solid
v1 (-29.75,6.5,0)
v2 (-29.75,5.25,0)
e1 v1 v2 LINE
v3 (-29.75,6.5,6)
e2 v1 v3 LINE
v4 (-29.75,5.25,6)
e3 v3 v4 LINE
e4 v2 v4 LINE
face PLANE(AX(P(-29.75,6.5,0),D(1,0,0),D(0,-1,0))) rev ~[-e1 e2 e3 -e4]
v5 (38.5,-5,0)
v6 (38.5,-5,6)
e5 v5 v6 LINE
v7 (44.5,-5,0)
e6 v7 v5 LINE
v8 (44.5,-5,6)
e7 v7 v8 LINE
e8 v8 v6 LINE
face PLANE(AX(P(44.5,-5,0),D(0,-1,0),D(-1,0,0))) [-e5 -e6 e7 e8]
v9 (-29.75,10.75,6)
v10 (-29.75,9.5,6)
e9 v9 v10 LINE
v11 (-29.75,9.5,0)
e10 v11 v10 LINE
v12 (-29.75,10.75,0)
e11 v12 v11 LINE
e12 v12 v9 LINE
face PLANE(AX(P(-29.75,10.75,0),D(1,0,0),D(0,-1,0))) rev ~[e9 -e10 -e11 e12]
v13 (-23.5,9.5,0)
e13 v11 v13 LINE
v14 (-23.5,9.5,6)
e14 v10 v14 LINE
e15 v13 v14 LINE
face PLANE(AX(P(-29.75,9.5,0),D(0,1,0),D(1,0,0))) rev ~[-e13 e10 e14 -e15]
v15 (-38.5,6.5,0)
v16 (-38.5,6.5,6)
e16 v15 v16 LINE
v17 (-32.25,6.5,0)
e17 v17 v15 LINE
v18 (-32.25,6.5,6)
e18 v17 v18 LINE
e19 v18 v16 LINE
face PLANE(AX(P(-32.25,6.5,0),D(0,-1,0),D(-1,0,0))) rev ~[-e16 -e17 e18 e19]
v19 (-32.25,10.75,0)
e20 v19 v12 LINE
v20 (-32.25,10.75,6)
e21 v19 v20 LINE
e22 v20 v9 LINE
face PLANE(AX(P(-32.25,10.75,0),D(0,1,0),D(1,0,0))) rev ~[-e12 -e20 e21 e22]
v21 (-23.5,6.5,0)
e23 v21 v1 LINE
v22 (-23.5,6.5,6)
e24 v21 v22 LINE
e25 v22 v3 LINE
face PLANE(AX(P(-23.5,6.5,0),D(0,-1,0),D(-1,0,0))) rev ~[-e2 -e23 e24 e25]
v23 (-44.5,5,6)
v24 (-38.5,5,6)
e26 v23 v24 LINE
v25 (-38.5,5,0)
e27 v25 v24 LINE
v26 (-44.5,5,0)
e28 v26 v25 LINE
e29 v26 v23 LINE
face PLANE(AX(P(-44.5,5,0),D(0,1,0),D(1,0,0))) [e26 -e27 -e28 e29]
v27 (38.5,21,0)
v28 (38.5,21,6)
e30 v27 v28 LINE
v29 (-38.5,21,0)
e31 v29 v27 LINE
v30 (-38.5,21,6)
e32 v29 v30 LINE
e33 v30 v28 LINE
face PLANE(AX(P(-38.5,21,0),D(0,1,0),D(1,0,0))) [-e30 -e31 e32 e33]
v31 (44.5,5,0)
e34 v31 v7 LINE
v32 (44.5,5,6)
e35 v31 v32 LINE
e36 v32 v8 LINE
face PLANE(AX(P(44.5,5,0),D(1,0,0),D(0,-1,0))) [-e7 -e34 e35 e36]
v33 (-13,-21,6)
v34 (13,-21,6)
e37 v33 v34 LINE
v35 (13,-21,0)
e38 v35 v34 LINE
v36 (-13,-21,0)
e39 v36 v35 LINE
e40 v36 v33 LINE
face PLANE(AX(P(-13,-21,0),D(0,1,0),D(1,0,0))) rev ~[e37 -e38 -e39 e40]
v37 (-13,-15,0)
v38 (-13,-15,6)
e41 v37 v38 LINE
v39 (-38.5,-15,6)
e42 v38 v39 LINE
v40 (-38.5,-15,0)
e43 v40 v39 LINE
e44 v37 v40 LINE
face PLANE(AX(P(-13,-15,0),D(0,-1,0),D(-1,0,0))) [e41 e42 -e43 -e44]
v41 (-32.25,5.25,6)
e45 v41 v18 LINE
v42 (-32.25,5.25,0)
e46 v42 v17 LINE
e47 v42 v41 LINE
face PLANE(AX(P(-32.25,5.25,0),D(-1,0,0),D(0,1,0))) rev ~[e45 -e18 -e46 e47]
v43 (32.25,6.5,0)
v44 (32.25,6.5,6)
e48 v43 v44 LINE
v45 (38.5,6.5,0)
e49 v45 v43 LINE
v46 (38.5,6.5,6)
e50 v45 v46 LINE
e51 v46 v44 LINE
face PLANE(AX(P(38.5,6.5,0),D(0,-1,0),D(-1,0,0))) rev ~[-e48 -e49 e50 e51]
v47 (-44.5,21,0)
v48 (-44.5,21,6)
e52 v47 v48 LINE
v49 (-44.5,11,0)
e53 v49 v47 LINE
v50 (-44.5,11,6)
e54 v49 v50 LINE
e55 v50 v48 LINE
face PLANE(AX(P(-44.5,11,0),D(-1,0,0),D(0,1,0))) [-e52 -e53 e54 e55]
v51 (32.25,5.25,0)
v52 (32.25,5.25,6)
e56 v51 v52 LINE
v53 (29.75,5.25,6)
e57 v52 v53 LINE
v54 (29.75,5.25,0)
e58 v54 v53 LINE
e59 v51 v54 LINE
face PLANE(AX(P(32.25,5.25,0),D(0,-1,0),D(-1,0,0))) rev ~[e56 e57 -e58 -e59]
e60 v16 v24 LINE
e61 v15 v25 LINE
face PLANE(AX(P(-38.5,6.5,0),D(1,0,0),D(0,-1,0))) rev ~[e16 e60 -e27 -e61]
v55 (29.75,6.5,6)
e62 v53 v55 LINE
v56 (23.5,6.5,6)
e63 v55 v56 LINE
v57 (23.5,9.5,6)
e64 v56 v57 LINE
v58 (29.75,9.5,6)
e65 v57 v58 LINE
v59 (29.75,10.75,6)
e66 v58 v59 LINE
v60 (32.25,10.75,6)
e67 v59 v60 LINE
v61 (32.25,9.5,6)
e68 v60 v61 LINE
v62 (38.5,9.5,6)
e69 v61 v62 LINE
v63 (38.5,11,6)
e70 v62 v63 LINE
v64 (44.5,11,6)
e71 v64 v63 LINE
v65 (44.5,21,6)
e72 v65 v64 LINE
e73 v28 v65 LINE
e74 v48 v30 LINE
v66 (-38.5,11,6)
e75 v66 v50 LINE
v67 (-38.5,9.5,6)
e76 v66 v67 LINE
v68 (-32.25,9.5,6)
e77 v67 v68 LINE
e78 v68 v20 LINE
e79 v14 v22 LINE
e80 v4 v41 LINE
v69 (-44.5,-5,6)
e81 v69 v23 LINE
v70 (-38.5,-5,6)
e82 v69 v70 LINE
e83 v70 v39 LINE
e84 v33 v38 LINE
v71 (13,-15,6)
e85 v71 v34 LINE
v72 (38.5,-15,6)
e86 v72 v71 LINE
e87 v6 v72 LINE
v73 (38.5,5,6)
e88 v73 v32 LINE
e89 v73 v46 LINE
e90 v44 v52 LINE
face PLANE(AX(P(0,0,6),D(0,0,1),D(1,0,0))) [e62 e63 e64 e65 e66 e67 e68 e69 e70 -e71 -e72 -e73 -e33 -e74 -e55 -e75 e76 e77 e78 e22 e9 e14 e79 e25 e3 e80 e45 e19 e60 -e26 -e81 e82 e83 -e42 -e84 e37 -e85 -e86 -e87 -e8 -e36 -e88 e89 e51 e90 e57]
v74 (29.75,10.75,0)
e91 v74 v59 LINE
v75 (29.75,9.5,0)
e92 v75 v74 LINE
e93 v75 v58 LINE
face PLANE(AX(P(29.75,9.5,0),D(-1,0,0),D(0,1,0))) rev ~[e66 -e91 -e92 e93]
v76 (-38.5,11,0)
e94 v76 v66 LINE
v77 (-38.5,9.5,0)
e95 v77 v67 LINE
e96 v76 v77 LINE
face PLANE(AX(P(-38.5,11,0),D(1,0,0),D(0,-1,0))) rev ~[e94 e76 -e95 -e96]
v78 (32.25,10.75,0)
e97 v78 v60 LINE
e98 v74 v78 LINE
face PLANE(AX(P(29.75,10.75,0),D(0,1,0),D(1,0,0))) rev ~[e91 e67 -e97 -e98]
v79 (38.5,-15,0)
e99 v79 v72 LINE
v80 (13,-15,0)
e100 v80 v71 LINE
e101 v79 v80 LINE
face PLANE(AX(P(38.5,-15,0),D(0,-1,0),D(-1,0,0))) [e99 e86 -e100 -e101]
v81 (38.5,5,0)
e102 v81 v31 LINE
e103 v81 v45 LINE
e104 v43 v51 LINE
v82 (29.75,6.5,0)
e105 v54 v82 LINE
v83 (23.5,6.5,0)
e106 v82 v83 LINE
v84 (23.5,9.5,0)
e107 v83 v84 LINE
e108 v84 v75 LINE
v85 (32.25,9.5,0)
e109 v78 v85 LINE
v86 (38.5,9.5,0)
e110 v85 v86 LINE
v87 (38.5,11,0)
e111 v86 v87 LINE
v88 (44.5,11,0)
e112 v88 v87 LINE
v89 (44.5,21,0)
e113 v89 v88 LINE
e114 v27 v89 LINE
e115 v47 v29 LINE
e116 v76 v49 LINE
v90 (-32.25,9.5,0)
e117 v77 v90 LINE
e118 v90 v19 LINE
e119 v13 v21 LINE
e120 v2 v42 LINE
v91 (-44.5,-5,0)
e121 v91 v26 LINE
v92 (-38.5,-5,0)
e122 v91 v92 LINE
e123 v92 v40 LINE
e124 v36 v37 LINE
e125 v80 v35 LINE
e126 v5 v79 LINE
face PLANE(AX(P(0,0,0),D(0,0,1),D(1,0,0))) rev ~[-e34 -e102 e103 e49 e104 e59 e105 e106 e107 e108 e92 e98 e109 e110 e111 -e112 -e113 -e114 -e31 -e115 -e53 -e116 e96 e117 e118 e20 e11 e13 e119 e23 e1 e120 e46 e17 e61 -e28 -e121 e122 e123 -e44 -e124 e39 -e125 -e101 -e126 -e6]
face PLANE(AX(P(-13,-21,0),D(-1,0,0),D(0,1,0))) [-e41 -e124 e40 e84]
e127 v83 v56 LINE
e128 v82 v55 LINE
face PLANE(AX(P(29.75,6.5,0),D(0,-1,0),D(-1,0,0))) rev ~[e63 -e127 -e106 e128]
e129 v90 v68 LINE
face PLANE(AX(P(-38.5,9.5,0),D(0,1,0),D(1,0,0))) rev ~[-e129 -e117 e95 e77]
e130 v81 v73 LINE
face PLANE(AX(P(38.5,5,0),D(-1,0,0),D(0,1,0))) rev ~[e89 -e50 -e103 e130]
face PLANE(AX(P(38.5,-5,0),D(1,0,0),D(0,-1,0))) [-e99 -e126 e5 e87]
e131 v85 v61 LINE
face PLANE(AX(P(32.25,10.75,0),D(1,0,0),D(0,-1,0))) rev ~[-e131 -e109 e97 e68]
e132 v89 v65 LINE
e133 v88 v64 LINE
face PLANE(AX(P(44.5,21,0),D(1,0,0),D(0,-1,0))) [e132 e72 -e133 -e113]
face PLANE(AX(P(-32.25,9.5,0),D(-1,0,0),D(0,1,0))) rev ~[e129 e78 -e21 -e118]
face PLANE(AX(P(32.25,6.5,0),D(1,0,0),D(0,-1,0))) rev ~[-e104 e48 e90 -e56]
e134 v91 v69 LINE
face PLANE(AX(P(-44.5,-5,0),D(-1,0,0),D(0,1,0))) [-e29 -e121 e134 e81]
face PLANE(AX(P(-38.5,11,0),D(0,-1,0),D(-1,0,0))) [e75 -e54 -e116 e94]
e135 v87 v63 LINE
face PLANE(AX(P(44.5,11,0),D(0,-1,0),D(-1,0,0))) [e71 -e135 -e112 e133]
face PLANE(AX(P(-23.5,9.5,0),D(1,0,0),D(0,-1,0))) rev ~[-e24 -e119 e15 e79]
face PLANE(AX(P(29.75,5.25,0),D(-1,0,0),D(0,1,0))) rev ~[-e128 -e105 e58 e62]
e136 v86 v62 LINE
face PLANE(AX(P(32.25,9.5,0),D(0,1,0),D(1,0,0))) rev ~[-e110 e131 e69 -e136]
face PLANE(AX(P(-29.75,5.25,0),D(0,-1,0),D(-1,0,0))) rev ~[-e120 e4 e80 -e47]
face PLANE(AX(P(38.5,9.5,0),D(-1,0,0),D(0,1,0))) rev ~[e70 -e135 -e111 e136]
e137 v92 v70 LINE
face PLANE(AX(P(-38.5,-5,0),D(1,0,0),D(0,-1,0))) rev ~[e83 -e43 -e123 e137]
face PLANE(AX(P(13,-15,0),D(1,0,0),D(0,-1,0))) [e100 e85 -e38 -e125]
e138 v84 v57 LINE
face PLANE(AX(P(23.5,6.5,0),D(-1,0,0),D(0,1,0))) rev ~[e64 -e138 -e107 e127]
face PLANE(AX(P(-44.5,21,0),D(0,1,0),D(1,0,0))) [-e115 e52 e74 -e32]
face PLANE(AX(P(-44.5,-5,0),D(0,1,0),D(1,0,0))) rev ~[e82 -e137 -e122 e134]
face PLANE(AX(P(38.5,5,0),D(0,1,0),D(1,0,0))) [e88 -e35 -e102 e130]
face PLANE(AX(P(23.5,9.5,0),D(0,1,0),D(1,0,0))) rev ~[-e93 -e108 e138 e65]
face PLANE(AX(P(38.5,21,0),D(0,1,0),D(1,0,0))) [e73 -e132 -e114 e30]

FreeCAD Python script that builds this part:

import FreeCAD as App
import Part
import Sketcher

V = App.Vector
Q = App.Units.Quantity


def add_polygon(sketch, points):
    """Adds a closed chain of lines whose ends are joined by coincident constraints."""
    first, n = sketch.GeometryCount, len(points)
    for a, b in zip(points, points[1:] + points[:1]):
        sketch.addGeometry(Part.LineSegment(App.Vector(*a, 0), App.Vector(*b, 0)), False)
    for i in range(n):
        sketch.addConstraint(Sketcher.Constraint("Coincident", first + i, 2, first + (i + 1) % n, 1))

doc = App.newDocument("Part")
params = doc.addObject("Spreadsheet::Sheet", "Params")
for row, (alias, value) in enumerate([
    ("sketch1_width", "6 mm"),
    ("sketch1_width2", "26 mm"),
    ("sketch1_width3", "89 mm"),
    ("sketch1_height", "10 mm"),
    ("sketch1_height2", "3 mm"),
    ("pad1_length", "6 mm"),
], start=1):
    params.set(f"A{row}", alias)
    params.set(f"B{row}", "=" + value)
    params.setAlias(f"B{row}", alias)

body = doc.addObject("PartDesign::Body", "Body")

sketch1 = body.newObject("Sketcher::SketchObject", "Sketch")
sketch1.AttachmentSupport = (doc.getObject("XY_Plane"), [""])
sketch1.MapMode = "FlatFace"
add_polygon(sketch1, [(-44.5, 5), (-44.5, -5), (-38.5, -5), (-38.5, -15), (-13, -15), (-13, -21), (13, -21), (13, -15), (38.5, -15), (38.5, -5), (44.5, -5), (44.5, 5), (38.5, 5), (38.5, 6.5), (32.2, 6.5), (32.2, 5.2), (29.8, 5.2), (29.8, 6.5), (23.5, 6.5), (23.5, 9.5), (29.8, 9.5), (29.8, 10.8), (32.2, 10.8), (32.2, 9.5), (38.5, 9.5), (38.5, 11), (44.5, 11), (44.5, 21), (-44.5, 21), (-44.5, 11), (-38.5, 11), (-38.5, 9.5), (-32.2, 9.5), (-32.2, 10.8), (-29.8, 10.8), (-29.8, 9.5), (-23.5, 9.5), (-23.5, 6.5), (-29.8, 6.5), (-29.8, 5.2), (-32.2, 5.2), (-32.2, 6.5), (-38.5, 6.5), (-38.5, 5)])
sketch1.addConstraint(Sketcher.Constraint("Vertical", 0))
sketch1.addConstraint(Sketcher.Constraint("Horizontal", 1))
sketch1.addConstraint(Sketcher.Constraint("Vertical", 2))
sketch1.addConstraint(Sketcher.Constraint("Horizontal", 3))
sketch1.addConstraint(Sketcher.Constraint("Vertical", 4))
sketch1.addConstraint(Sketcher.Constraint("Horizontal", 5))
sketch1.addConstraint(Sketcher.Constraint("Vertical", 6))
sketch1.addConstraint(Sketcher.Constraint("Horizontal", 7))
sketch1.addConstraint(Sketcher.Constraint("Vertical", 8))
sketch1.addConstraint(Sketcher.Constraint("Horizontal", 9))
sketch1.addConstraint(Sketcher.Constraint("Vertical", 10))
sketch1.addConstraint(Sketcher.Constraint("Horizontal", 11))
sketch1.addConstraint(Sketcher.Constraint("Vertical", 12))
sketch1.addConstraint(Sketcher.Constraint("Horizontal", 13))
sketch1.addConstraint(Sketcher.Constraint("Vertical", 14))
sketch1.addConstraint(Sketcher.Constraint("Horizontal", 15))
sketch1.addConstraint(Sketcher.Constraint("Vertical", 16))
sketch1.addConstraint(Sketcher.Constraint("Horizontal", 17))
sketch1.addConstraint(Sketcher.Constraint("Vertical", 18))
sketch1.addConstraint(Sketcher.Constraint("Horizontal", 19))
sketch1.addConstraint(Sketcher.Constraint("Vertical", 20))
sketch1.addConstraint(Sketcher.Constraint("Horizontal", 21))
sketch1.addConstraint(Sketcher.Constraint("Vertical", 22))
sketch1.addConstraint(Sketcher.Constraint("Horizontal", 23))
sketch1.addConstraint(Sketcher.Constraint("Vertical", 24))
sketch1.addConstraint(Sketcher.Constraint("Horizontal", 25))
sketch1.addConstraint(Sketcher.Constraint("Vertical", 26))
sketch1.addConstraint(Sketcher.Constraint("Horizontal", 27))
sketch1.addConstraint(Sketcher.Constraint("Vertical", 28))
sketch1.addConstraint(Sketcher.Constraint("Horizontal", 29))
sketch1.addConstraint(Sketcher.Constraint("Vertical", 30))
sketch1.addConstraint(Sketcher.Constraint("Horizontal", 31))
sketch1.addConstraint(Sketcher.Constraint("Vertical", 32))
sketch1.addConstraint(Sketcher.Constraint("Horizontal", 33))
sketch1.addConstraint(Sketcher.Constraint("Vertical", 34))
sketch1.addConstraint(Sketcher.Constraint("Horizontal", 35))
sketch1.addConstraint(Sketcher.Constraint("Vertical", 36))
sketch1.addConstraint(Sketcher.Constraint("Horizontal", 37))
sketch1.addConstraint(Sketcher.Constraint("Vertical", 38))
sketch1.addConstraint(Sketcher.Constraint("Horizontal", 39))
sketch1.addConstraint(Sketcher.Constraint("Vertical", 40))
sketch1.addConstraint(Sketcher.Constraint("Horizontal", 41))
sketch1.addConstraint(Sketcher.Constraint("Vertical", 42))
sketch1.addConstraint(Sketcher.Constraint("Horizontal", 43))
sketch1.addConstraint(Sketcher.Constraint("Symmetric", 0, 2, 10, 2, -1, 1))
sketch1.addConstraint(Sketcher.Constraint("Symmetric", 8, 2, 42, 2, -1, 1))
sketch1.addConstraint(Sketcher.Constraint("Symmetric", 3, 2, 6, 2, -2))
sketch1.addConstraint(Sketcher.Constraint("Symmetric", 1, 2, 8, 2, -2))
sketch1.addConstraint(Sketcher.Constraint("Symmetric", 25, 2, 28, 2, -2))
sketch1.addConstraint(Sketcher.Constraint("Symmetric", 23, 2, 30, 2, -2))
sketch1.addConstraint(Sketcher.Constraint("Symmetric", 21, 2, 32, 2, -2))
sketch1.addConstraint(Sketcher.Constraint("Symmetric", 19, 2, 34, 2, -2))
sketch1.addConstraint(Sketcher.Constraint("Symmetric", 17, 2, 36, 2, -2))
sketch1.addConstraint(Sketcher.Constraint("Symmetric", 15, 2, 38, 2, -2))
sketch1.addConstraint(Sketcher.Constraint("Symmetric", 13, 2, 40, 2, -2))
sketch1.addConstraint(Sketcher.Constraint("Horizontal", 13, 2, 16, 2))
sketch1.addConstraint(Sketcher.Constraint("Horizontal", 19, 2, 22, 2))
sketch1.addConstraint(Sketcher.Constraint("Vertical", 8, 2, 11, 2))
sketch1.addConstraint(Sketcher.Constraint("Vertical", 16, 2, 19, 2))
sketch1.addConstraint(Sketcher.Constraint("Vertical", 14, 2, 21, 2))
sketch1.addConstraint(Sketcher.Constraint("Vertical", 12, 2, 23, 2))
sketch1.addConstraint(Sketcher.Constraint("Vertical", 10, 2, 25, 2))
sketch1.addConstraint(Sketcher.Constraint("Equal", 13, 17))
sketch1.addConstraint(Sketcher.Constraint("Equal", 0, 2))
sketch1.addConstraint(Sketcher.Constraint("Equal", 43, 4))
sketch1.addConstraint(Sketcher.Constraint("Equal", 16, 20))
sketch1.addConstraint(Sketcher.Constraint("Equal", 12, 24))
sketch1.addConstraint(Sketcher.Constraint("Equal", 10, 26))
sketch1.addConstraint(Sketcher.Constraint("DistanceX", 1, 1, 1, 2, Q("6 mm")))
sketch1.addConstraint(Sketcher.Constraint("DistanceX", 5, 1, 5, 2, Q("26 mm")))
sketch1.addConstraint(Sketcher.Constraint("DistanceX", 27, 2, 27, 1, Q("89 mm")))
sketch1.addConstraint(Sketcher.Constraint("DistanceY", 0, 2, 0, 1, Q("10 mm")))
sketch1.addConstraint(Sketcher.Constraint("DistanceY", 18, 1, 18, 2, Q("3 mm")))
sketch1.addConstraint(Sketcher.Constraint("DistanceX", 15, 2, 15, 1, Q("2.5 mm")))
sketch1.addConstraint(Sketcher.Constraint("DistanceY", 12, 1, 12, 2, Q("1.5 mm")))
sketch1.addConstraint(Sketcher.Constraint("DistanceX", 17, 2, 12, 2, Q("15 mm")))
sketch1.addConstraint(Sketcher.Constraint("DistanceY", 14, 2, 14, 1, Q("1.25 mm")))
sketch1.setExpression("Constraints[112]", "Params.sketch1_width")
sketch1.setExpression("Constraints[113]", "Params.sketch1_width2")
sketch1.setExpression("Constraints[114]", "Params.sketch1_width3")
sketch1.setExpression("Constraints[115]", "Params.sketch1_height")
sketch1.setExpression("Constraints[116]", "Params.sketch1_height2")
pad1 = body.newObject("PartDesign::Pad", "Pad")
pad1.Profile = sketch1
pad1.setExpression("Length", "Params.pad1_length")

doc.recompute()
